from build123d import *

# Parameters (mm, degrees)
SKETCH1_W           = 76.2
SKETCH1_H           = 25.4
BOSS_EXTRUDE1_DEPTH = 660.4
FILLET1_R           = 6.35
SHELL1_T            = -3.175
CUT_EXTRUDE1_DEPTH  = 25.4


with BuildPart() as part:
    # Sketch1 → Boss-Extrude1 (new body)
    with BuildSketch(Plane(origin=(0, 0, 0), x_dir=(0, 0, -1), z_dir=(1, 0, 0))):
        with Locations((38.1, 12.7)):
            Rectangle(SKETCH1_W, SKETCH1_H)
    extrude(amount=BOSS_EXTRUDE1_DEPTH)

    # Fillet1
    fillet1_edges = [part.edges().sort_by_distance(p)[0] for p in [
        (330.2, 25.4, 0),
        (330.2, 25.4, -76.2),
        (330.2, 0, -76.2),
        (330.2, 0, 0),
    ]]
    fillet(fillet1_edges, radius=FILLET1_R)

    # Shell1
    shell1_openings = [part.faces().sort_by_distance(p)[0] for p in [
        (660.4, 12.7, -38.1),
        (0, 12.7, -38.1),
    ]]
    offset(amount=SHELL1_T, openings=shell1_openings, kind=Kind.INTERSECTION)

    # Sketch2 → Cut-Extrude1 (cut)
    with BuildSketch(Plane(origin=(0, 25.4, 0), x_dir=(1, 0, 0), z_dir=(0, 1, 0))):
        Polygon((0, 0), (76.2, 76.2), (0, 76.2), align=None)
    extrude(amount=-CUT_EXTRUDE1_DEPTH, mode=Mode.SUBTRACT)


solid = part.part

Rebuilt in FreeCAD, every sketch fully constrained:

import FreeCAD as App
import Part
import Sketcher
from FreeCAD import Vector
Q = App.Units.Quantity


def edges_at(feature, points):
    """Names of the edges that pass closest to the given points."""
    edges = feature.Shape.Edges
    near = lambda p: min(range(len(edges)), key=lambda i: edges[i].distToShape(Part.Vertex(*p))[0])
    return sorted({f"Edge{near(p) + 1}" for p in points})


def faces_at(feature, points):
    """Names of the faces that lie closest to the given points."""
    faces = feature.Shape.Faces
    near = lambda p: min(range(len(faces)), key=lambda i: faces[i].distToShape(Part.Vertex(*p))[0])
    return sorted({f"Face{near(p) + 1}" for p in points})

doc = App.newDocument("Part")
params = doc.addObject("Spreadsheet::Sheet", "Params")
for row, (alias, value) in enumerate([
    ("sketch1_width", "1 in"),
    ("sketch1_height", "3 in"),
    ("pad1_length", "26 in"),
    ("fillet_radius", "0.25 in"),
    ("thickness_wall", "0.125 in"),
    ("sketch2_width", "3 in"),
    ("pocket1_length", "1 in"),
], start=1):
    params.set(f"A{row}", alias)
    params.set(f"B{row}", "=" + value)
    params.setAlias(f"B{row}", alias)

body = doc.addObject("PartDesign::Body", "Body")

sketch1 = doc.addObject("Sketcher::SketchObject", "Sketch")
body.addObject(sketch1)
sketch1.AttachmentSupport = (doc.YZ_Plane, [""])
sketch1.MapMode = "FlatFace"
sketch1.addGeometry(Part.LineSegment(Vector(25.4, 0, 0), Vector(0, 0, 0)), False)
sketch1.addGeometry(Part.LineSegment(Vector(0, 0, 0), Vector(0, -76.2, 0)), False)
sketch1.addGeometry(Part.LineSegment(Vector(0, -76.2, 0), Vector(25.4, -76.2, 0)), False)
sketch1.addGeometry(Part.LineSegment(Vector(25.4, -76.2, 0), Vector(25.4, 0, 0)), False)
sketch1.addConstraint(Sketcher.Constraint("Coincident", 0, 2, 1, 1))
sketch1.addConstraint(Sketcher.Constraint("Coincident", 1, 2, 2, 1))
sketch1.addConstraint(Sketcher.Constraint("Coincident", 2, 2, 3, 1))
sketch1.addConstraint(Sketcher.Constraint("Coincident", 3, 2, 0, 1))
sketch1.addConstraint(Sketcher.Constraint("Horizontal", 0))
sketch1.addConstraint(Sketcher.Constraint("Vertical", 1))
sketch1.addConstraint(Sketcher.Constraint("Horizontal", 2))
sketch1.addConstraint(Sketcher.Constraint("Vertical", 3))
sketch1.addConstraint(Sketcher.Constraint("Coincident", 0, 2, -1, 1))
sketch1.addConstraint(Sketcher.Constraint("DistanceX", 0, 2, 0, 1, Q("1 in")))
sketch1.addConstraint(Sketcher.Constraint("DistanceY", 1, 2, 1, 1, Q("3 in")))
sketch1.setExpression("Constraints[9]", "Params.sketch1_width")
sketch1.setExpression("Constraints[10]", "Params.sketch1_height")
pad1 = doc.addObject("PartDesign::Pad", "Pad")
body.addObject(pad1)
pad1.Profile = sketch1
pad1.setExpression("Length", "Params.pad1_length")
doc.recompute()

fillet = doc.addObject("PartDesign::Fillet", "Fillet")
body.addObject(fillet)
fillet.Base = (pad1, edges_at(pad1, [
    (330.2, 25.4, 0),
    (330.2, 25.4, -76.2),
    (330.2, 0, -76.2),
    (330.2, 0, 0),
]))
fillet.setExpression("Radius", "Params.fillet_radius")
doc.recompute()

thickness = doc.addObject("PartDesign::Thickness", "Thickness")
body.addObject(thickness)
thickness.Base = (fillet, faces_at(fillet, [(660.4, 12.7, -38.1), (0, 12.7, -38.1)]))
thickness.setExpression("Value", "Params.thickness_wall")
thickness.Reversed = True
thickness.Join = "Intersection"

sketch2 = doc.addObject("Sketcher::SketchObject", "Sketch001")
body.addObject(sketch2)
sketch2.AttachmentSupport = (doc.XZ_Plane, [""])
sketch2.MapMode = "FlatFace"
sketch2.AttachmentOffset = App.Placement(Vector(0, 0, -1 * 25.4), App.Rotation())
sketch2.addGeometry(Part.LineSegment(Vector(0, 0, 0), Vector(76.2, -76.2, 0)), False)
sketch2.addGeometry(Part.LineSegment(Vector(76.2, -76.2, 0), Vector(0, -76.2, 0)), False)
sketch2.addGeometry(Part.LineSegment(Vector(0, -76.2, 0), Vector(0, 0, 0)), False)
sketch2.addConstraint(Sketcher.Constraint("Coincident", 0, 2, 1, 1))
sketch2.addConstraint(Sketcher.Constraint("Coincident", 1, 2, 2, 1))
sketch2.addConstraint(Sketcher.Constraint("Coincident", 2, 2, 0, 1))
sketch2.addConstraint(Sketcher.Constraint("Horizontal", 1))
sketch2.addConstraint(Sketcher.Constraint("Vertical", 2))
sketch2.addConstraint(Sketcher.Constraint("Coincident", 2, 2, -1, 1))
sketch2.addConstraint(Sketcher.Constraint("Equal", 1, 2))
sketch2.addConstraint(Sketcher.Constraint("DistanceX", 1, 2, 1, 1, Q("3 in")))
sketch2.setExpression("Constraints[7]", "Params.sketch2_width")
pocket1 = doc.addObject("PartDesign::Pocket", "Pocket")
body.addObject(pocket1)
pocket1.Profile = sketch2
pocket1.setExpression("Length", "Params.pocket1_length")
pocket1.Reversed = True

doc.recompute()
